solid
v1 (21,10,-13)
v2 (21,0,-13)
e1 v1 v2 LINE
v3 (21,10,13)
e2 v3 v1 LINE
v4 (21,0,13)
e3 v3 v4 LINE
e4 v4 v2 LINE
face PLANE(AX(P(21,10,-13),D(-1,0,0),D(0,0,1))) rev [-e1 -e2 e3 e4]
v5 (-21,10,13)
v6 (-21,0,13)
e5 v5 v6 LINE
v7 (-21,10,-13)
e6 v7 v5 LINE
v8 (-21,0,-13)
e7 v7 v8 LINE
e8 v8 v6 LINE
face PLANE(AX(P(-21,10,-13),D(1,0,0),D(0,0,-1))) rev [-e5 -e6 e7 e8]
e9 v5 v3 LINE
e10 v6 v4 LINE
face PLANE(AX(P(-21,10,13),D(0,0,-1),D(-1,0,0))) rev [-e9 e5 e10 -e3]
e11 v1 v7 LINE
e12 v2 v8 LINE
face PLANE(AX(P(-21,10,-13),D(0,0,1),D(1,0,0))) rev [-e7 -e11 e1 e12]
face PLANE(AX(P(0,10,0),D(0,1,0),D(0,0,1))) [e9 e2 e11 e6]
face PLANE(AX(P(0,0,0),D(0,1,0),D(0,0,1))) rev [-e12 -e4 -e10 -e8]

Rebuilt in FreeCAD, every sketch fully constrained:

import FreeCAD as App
import Part
import Sketcher
Q = App.Units.Quantity


def add_polygon(sketch, points):
    """Adds a closed chain of lines whose ends are joined by coincident constraints."""
    first, n = sketch.GeometryCount, len(points)
    for a, b in zip(points, points[1:] + points[:1]):
        sketch.addGeometry(Part.LineSegment(App.Vector(*a, 0), App.Vector(*b, 0)), False)
    for i in range(n):
        sketch.addConstraint(Sketcher.Constraint("Coincident", first + i, 2, first + (i + 1) % n, 1))

doc = App.newDocument("Part")
body = doc.addObject("PartDesign::Body", "Body")

# Sketch on XZ plane
sketch1 = body.newObject("Sketcher::SketchObject", "Sketch")
sketch1.AttachmentSupport = (doc.getObject("XZ_Plane"), [""])
sketch1.MapMode = "FlatFace"
add_polygon(sketch1, [(-21, -13), (-21, 13), (21, 13), (21, -13)])  # lines 0-3
sketch1.addConstraint(Sketcher.Constraint("Vertical", 0))
sketch1.addConstraint(Sketcher.Constraint("Horizontal", 1))
sketch1.addConstraint(Sketcher.Constraint("Vertical", 2))
sketch1.addConstraint(Sketcher.Constraint("Horizontal", 3))
sketch1.addConstraint(Sketcher.Constraint("Symmetric", 0, 2, 2, 2, -1, 1))
sketch1.addConstraint(Sketcher.Constraint("DistanceX", 1, 1, 1, 2, Q("42 mm")))
sketch1.addConstraint(Sketcher.Constraint("DistanceY", 0, 1, 0, 2, Q("26 mm")))
pad1 = body.newObject("PartDesign::Pad", "Pad")
pad1.Profile = sketch1
pad1.Length = 10
pad1.Reversed = True

doc.recompute()
